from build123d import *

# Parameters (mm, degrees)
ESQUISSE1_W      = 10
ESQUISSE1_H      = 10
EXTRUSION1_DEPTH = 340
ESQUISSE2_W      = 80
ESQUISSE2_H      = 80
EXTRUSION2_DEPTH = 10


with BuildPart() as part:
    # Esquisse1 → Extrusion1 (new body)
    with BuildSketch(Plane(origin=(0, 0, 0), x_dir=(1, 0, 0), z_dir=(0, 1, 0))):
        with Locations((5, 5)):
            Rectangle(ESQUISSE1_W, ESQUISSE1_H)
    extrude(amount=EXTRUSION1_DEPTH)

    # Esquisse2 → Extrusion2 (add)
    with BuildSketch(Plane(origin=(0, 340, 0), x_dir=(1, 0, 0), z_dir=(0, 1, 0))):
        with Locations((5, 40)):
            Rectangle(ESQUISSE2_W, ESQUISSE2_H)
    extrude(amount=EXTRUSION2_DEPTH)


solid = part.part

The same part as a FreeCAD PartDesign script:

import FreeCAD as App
import Part
import Sketcher
Q = App.Units.Quantity


def add_polygon(sketch, points):
    """Adds a closed chain of lines whose ends are joined by coincident constraints."""
    first, n = sketch.GeometryCount, len(points)
    for a, b in zip(points, points[1:] + points[:1]):
        sketch.addGeometry(Part.LineSegment(App.Vector(*a, 0), App.Vector(*b, 0)), False)
    for i in range(n):
        sketch.addConstraint(Sketcher.Constraint("Coincident", first + i, 2, first + (i + 1) % n, 1))

doc = App.newDocument("Part")
params = doc.addObject("Spreadsheet::Sheet", "Params")
for row, (alias, value) in enumerate([
    ("sketch1_width", "10 mm"),
    ("pad1_length", "340 mm"),
    ("sketch2_width", "80 mm"),
    ("pad2_length", "10 mm"),
], start=1):
    params.set(f"A{row}", alias)
    params.set(f"B{row}", "=" + value)
    params.setAlias(f"B{row}", alias)

body = doc.addObject("PartDesign::Body", "Body")

sketch1 = body.newObject("Sketcher::SketchObject", "Sketch")
sketch1.AttachmentSupport = (doc.getObject("XZ_Plane"), [""])
sketch1.MapMode = "FlatFace"
add_polygon(sketch1, [(0, -10), (0, 0), (10, 0), (10, -10)])
sketch1.addConstraint([
    Sketcher.Constraint("Vertical", 0),
    Sketcher.Constraint("Horizontal", 1),
    Sketcher.Constraint("Vertical", 2),
    Sketcher.Constraint("Horizontal", 3),
    Sketcher.Constraint("Coincident", 0, 2, -1, 1),
    Sketcher.Constraint("Equal", 3, 0),
    Sketcher.Constraint("DistanceX", 1, 1, 1, 2, Q("10 mm")),
])
sketch1.setExpression("Constraints[10]", "Params.sketch1_width")
pad1 = body.newObject("PartDesign::Pad", "Pad")
pad1.Profile = sketch1
pad1.setExpression("Length", "Params.pad1_length")
pad1.Reversed = True

sketch2 = body.newObject("Sketcher::SketchObject", "Sketch001")
sketch2.AttachmentSupport = (doc.getObject("XZ_Plane"), [""])
sketch2.MapMode = "FlatFace"
sketch2.AttachmentOffset = App.Placement(App.Vector(0, 0, -340), App.Rotation())
add_polygon(sketch2, [(-35, -80), (-35, 0), (45, 0), (45, -80)])
sketch2.addConstraint([
    Sketcher.Constraint("Vertical", 0),
    Sketcher.Constraint("Horizontal", 1),
    Sketcher.Constraint("Vertical", 2),
    Sketcher.Constraint("Horizontal", 3),
    Sketcher.Constraint("PointOnObject", 0, 2, -1),
    Sketcher.Constraint("Equal", 3, 0),
    Sketcher.Constraint("DistanceX", 1, 1, 1, 2, Q("80 mm")),
    Sketcher.Constraint("DistanceX", 0, 2, -1, 1, Q("35 mm")),
])
sketch2.setExpression("Constraints[10]", "Params.sketch2_width")
pad2 = body.newObject("PartDesign::Pad", "Pad001")
pad2.Profile = sketch2
pad2.setExpression("Length", "Params.pad2_length")
pad2.Reversed = True

doc.recompute()
